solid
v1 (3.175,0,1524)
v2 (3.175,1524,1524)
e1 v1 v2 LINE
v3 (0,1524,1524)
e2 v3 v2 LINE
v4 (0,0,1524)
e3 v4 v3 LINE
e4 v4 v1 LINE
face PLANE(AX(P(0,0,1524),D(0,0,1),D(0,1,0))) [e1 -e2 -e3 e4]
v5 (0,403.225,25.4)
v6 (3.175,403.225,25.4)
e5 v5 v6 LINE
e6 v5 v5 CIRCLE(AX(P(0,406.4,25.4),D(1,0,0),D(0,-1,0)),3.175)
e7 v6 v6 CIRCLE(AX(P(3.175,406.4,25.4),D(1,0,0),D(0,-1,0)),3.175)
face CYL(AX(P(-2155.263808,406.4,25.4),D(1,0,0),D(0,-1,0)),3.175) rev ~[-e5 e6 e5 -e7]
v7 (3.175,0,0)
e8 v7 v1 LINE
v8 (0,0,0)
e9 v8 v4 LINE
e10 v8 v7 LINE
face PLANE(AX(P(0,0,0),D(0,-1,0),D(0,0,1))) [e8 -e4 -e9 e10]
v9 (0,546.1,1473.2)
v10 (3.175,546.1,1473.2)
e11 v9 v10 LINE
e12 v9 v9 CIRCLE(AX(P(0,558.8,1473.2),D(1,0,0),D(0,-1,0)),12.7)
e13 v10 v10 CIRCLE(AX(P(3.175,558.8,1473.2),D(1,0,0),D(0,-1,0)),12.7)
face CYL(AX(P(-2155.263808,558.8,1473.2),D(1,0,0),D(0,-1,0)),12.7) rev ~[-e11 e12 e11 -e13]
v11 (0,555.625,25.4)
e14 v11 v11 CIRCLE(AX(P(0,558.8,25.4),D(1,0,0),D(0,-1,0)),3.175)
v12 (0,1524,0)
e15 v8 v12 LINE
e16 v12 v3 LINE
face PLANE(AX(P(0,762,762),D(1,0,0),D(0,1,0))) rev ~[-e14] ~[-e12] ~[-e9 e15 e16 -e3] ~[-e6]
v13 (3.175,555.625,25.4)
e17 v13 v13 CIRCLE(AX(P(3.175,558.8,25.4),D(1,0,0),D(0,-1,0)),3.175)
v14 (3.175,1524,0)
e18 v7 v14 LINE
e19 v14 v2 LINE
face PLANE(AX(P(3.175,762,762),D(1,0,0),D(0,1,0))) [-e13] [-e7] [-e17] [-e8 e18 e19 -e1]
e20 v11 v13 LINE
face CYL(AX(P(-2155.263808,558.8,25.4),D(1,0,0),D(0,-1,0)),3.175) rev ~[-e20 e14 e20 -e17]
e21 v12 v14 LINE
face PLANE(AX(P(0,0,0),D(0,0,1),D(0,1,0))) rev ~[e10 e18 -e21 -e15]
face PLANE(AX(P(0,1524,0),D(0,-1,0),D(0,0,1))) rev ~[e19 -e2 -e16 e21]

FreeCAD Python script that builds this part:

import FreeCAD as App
import Part
import Sketcher

V = App.Vector
Q = App.Units.Quantity


def add_polygon(sketch, points):
    """Adds a closed chain of lines whose ends are joined by coincident constraints."""
    first, n = sketch.GeometryCount, len(points)
    for a, b in zip(points, points[1:] + points[:1]):
        sketch.addGeometry(Part.LineSegment(App.Vector(*a, 0), App.Vector(*b, 0)), False)
    for i in range(n):
        sketch.addConstraint(Sketcher.Constraint("Coincident", first + i, 2, first + (i + 1) % n, 1))

doc = App.newDocument("Part")
params = doc.addObject("Spreadsheet::Sheet", "Params")
for row, (alias, value) in enumerate([
    ("sketch1_width", "60 in"),
    ("pad1_length", "0.125 in"),
    ("sketch2_diameter", "0.25 in"),
    ("hole_diameter", "0.25 in"),
    ("sketch3_diameter", "0.25 in"),
    ("hole2_diameter", "0.25 in"),
    ("sketch4_diameter", "1 in"),
    ("hole3_diameter", "1 in"),
], start=1):
    params.set(f"A{row}", alias)
    params.set(f"B{row}", "=" + value)
    params.setAlias(f"B{row}", alias)

body = doc.addObject("PartDesign::Body", "Body")

# Sketch on YZ plane
sketch1 = body.newObject("Sketcher::SketchObject", "Sketch")
sketch1.AttachmentSupport = (doc.getObject("YZ_Plane"), [""])
sketch1.MapMode = "FlatFace"
add_polygon(sketch1, [(0, 1524), (0, 0), (1524, 0), (1524, 1524)])  # lines 0-3
sketch1.addConstraint(Sketcher.Constraint("Vertical", 0))
sketch1.addConstraint(Sketcher.Constraint("Horizontal", 1))
sketch1.addConstraint(Sketcher.Constraint("Vertical", 2))
sketch1.addConstraint(Sketcher.Constraint("Horizontal", 3))
sketch1.addConstraint(Sketcher.Constraint("Coincident", 0, 2, -1, 1))
sketch1.addConstraint(Sketcher.Constraint("Equal", 3, 0))
sketch1.addConstraint(Sketcher.Constraint("DistanceX", 1, 1, 1, 2, Q("60 in")))
sketch1.setExpression("Constraints[10]", "Params.sketch1_width")
pad1 = body.newObject("PartDesign::Pad", "Pad")
pad1.Profile = sketch1
pad1.setExpression("Length", "Params.pad1_length")

# Sketch on YZ plane
sketch2 = body.newObject("Sketcher::SketchObject", "Sketch001")
sketch2.AttachmentSupport = (doc.getObject("YZ_Plane"), [""])
sketch2.MapMode = "FlatFace"
sketch2.addGeometry(Part.Circle(V(406.4, 25.4, 0), V(0, 0, 1), 3.2), False)
sketch2.addConstraint(Sketcher.Constraint("Diameter", 0, Q("0.25 in")))
sketch2.addConstraint(Sketcher.Constraint("DistanceX", -1, 1, 0, 3, Q("16 in")))
sketch2.addConstraint(Sketcher.Constraint("DistanceY", -1, 1, 0, 3, Q("1 in")))
sketch2.setExpression("Constraints[0]", "Params.sketch2_diameter")
doc.recompute()
hole = body.newObject("PartDesign::Hole", "Hole")
hole.Profile = sketch2
hole.ThreadType = "None"
hole.setExpression("Diameter", "Params.hole_diameter")
hole.DepthType = "ThroughAll"
hole.Reversed = True

# Sketch on YZ plane
sketch3 = body.newObject("Sketcher::SketchObject", "Sketch002")
sketch3.AttachmentSupport = (doc.getObject("YZ_Plane"), [""])
sketch3.MapMode = "FlatFace"
sketch3.addGeometry(Part.Circle(V(558.8, 25.4, 0), V(0, 0, 1), 3.2), False)
sketch3.addConstraint(Sketcher.Constraint("Diameter", 0, Q("0.25 in")))
sketch3.addConstraint(Sketcher.Constraint("DistanceX", -1, 1, 0, 3, Q("22 in")))
sketch3.addConstraint(Sketcher.Constraint("DistanceY", -1, 1, 0, 3, Q("1 in")))
sketch3.setExpression("Constraints[0]", "Params.sketch3_diameter")
doc.recompute()
hole2 = body.newObject("PartDesign::Hole", "Hole001")
hole2.Profile = sketch3
hole2.ThreadType = "None"
hole2.setExpression("Diameter", "Params.hole2_diameter")
hole2.DepthType = "ThroughAll"
hole2.Reversed = True

# Sketch on YZ plane
sketch4 = body.newObject("Sketcher::SketchObject", "Sketch003")
sketch4.AttachmentSupport = (doc.getObject("YZ_Plane"), [""])
sketch4.MapMode = "FlatFace"
sketch4.addGeometry(Part.Circle(V(559, 1473, 0), V(0, 0, 1), 13), False)
sketch4.addConstraint(Sketcher.Constraint("Diameter", 0, Q("1 in")))
sketch4.addConstraint(Sketcher.Constraint("DistanceX", -1, 1, 0, 3, Q("22 in")))
sketch4.addConstraint(Sketcher.Constraint("DistanceY", -1, 1, 0, 3, Q("58 in")))
sketch4.setExpression("Constraints[0]", "Params.sketch4_diameter")
doc.recompute()
hole3 = body.newObject("PartDesign::Hole", "Hole002")
hole3.Profile = sketch4
hole3.ThreadType = "None"
hole3.setExpression("Diameter", "Params.hole3_diameter")
hole3.DepthType = "ThroughAll"
hole3.Reversed = True

doc.recompute()
